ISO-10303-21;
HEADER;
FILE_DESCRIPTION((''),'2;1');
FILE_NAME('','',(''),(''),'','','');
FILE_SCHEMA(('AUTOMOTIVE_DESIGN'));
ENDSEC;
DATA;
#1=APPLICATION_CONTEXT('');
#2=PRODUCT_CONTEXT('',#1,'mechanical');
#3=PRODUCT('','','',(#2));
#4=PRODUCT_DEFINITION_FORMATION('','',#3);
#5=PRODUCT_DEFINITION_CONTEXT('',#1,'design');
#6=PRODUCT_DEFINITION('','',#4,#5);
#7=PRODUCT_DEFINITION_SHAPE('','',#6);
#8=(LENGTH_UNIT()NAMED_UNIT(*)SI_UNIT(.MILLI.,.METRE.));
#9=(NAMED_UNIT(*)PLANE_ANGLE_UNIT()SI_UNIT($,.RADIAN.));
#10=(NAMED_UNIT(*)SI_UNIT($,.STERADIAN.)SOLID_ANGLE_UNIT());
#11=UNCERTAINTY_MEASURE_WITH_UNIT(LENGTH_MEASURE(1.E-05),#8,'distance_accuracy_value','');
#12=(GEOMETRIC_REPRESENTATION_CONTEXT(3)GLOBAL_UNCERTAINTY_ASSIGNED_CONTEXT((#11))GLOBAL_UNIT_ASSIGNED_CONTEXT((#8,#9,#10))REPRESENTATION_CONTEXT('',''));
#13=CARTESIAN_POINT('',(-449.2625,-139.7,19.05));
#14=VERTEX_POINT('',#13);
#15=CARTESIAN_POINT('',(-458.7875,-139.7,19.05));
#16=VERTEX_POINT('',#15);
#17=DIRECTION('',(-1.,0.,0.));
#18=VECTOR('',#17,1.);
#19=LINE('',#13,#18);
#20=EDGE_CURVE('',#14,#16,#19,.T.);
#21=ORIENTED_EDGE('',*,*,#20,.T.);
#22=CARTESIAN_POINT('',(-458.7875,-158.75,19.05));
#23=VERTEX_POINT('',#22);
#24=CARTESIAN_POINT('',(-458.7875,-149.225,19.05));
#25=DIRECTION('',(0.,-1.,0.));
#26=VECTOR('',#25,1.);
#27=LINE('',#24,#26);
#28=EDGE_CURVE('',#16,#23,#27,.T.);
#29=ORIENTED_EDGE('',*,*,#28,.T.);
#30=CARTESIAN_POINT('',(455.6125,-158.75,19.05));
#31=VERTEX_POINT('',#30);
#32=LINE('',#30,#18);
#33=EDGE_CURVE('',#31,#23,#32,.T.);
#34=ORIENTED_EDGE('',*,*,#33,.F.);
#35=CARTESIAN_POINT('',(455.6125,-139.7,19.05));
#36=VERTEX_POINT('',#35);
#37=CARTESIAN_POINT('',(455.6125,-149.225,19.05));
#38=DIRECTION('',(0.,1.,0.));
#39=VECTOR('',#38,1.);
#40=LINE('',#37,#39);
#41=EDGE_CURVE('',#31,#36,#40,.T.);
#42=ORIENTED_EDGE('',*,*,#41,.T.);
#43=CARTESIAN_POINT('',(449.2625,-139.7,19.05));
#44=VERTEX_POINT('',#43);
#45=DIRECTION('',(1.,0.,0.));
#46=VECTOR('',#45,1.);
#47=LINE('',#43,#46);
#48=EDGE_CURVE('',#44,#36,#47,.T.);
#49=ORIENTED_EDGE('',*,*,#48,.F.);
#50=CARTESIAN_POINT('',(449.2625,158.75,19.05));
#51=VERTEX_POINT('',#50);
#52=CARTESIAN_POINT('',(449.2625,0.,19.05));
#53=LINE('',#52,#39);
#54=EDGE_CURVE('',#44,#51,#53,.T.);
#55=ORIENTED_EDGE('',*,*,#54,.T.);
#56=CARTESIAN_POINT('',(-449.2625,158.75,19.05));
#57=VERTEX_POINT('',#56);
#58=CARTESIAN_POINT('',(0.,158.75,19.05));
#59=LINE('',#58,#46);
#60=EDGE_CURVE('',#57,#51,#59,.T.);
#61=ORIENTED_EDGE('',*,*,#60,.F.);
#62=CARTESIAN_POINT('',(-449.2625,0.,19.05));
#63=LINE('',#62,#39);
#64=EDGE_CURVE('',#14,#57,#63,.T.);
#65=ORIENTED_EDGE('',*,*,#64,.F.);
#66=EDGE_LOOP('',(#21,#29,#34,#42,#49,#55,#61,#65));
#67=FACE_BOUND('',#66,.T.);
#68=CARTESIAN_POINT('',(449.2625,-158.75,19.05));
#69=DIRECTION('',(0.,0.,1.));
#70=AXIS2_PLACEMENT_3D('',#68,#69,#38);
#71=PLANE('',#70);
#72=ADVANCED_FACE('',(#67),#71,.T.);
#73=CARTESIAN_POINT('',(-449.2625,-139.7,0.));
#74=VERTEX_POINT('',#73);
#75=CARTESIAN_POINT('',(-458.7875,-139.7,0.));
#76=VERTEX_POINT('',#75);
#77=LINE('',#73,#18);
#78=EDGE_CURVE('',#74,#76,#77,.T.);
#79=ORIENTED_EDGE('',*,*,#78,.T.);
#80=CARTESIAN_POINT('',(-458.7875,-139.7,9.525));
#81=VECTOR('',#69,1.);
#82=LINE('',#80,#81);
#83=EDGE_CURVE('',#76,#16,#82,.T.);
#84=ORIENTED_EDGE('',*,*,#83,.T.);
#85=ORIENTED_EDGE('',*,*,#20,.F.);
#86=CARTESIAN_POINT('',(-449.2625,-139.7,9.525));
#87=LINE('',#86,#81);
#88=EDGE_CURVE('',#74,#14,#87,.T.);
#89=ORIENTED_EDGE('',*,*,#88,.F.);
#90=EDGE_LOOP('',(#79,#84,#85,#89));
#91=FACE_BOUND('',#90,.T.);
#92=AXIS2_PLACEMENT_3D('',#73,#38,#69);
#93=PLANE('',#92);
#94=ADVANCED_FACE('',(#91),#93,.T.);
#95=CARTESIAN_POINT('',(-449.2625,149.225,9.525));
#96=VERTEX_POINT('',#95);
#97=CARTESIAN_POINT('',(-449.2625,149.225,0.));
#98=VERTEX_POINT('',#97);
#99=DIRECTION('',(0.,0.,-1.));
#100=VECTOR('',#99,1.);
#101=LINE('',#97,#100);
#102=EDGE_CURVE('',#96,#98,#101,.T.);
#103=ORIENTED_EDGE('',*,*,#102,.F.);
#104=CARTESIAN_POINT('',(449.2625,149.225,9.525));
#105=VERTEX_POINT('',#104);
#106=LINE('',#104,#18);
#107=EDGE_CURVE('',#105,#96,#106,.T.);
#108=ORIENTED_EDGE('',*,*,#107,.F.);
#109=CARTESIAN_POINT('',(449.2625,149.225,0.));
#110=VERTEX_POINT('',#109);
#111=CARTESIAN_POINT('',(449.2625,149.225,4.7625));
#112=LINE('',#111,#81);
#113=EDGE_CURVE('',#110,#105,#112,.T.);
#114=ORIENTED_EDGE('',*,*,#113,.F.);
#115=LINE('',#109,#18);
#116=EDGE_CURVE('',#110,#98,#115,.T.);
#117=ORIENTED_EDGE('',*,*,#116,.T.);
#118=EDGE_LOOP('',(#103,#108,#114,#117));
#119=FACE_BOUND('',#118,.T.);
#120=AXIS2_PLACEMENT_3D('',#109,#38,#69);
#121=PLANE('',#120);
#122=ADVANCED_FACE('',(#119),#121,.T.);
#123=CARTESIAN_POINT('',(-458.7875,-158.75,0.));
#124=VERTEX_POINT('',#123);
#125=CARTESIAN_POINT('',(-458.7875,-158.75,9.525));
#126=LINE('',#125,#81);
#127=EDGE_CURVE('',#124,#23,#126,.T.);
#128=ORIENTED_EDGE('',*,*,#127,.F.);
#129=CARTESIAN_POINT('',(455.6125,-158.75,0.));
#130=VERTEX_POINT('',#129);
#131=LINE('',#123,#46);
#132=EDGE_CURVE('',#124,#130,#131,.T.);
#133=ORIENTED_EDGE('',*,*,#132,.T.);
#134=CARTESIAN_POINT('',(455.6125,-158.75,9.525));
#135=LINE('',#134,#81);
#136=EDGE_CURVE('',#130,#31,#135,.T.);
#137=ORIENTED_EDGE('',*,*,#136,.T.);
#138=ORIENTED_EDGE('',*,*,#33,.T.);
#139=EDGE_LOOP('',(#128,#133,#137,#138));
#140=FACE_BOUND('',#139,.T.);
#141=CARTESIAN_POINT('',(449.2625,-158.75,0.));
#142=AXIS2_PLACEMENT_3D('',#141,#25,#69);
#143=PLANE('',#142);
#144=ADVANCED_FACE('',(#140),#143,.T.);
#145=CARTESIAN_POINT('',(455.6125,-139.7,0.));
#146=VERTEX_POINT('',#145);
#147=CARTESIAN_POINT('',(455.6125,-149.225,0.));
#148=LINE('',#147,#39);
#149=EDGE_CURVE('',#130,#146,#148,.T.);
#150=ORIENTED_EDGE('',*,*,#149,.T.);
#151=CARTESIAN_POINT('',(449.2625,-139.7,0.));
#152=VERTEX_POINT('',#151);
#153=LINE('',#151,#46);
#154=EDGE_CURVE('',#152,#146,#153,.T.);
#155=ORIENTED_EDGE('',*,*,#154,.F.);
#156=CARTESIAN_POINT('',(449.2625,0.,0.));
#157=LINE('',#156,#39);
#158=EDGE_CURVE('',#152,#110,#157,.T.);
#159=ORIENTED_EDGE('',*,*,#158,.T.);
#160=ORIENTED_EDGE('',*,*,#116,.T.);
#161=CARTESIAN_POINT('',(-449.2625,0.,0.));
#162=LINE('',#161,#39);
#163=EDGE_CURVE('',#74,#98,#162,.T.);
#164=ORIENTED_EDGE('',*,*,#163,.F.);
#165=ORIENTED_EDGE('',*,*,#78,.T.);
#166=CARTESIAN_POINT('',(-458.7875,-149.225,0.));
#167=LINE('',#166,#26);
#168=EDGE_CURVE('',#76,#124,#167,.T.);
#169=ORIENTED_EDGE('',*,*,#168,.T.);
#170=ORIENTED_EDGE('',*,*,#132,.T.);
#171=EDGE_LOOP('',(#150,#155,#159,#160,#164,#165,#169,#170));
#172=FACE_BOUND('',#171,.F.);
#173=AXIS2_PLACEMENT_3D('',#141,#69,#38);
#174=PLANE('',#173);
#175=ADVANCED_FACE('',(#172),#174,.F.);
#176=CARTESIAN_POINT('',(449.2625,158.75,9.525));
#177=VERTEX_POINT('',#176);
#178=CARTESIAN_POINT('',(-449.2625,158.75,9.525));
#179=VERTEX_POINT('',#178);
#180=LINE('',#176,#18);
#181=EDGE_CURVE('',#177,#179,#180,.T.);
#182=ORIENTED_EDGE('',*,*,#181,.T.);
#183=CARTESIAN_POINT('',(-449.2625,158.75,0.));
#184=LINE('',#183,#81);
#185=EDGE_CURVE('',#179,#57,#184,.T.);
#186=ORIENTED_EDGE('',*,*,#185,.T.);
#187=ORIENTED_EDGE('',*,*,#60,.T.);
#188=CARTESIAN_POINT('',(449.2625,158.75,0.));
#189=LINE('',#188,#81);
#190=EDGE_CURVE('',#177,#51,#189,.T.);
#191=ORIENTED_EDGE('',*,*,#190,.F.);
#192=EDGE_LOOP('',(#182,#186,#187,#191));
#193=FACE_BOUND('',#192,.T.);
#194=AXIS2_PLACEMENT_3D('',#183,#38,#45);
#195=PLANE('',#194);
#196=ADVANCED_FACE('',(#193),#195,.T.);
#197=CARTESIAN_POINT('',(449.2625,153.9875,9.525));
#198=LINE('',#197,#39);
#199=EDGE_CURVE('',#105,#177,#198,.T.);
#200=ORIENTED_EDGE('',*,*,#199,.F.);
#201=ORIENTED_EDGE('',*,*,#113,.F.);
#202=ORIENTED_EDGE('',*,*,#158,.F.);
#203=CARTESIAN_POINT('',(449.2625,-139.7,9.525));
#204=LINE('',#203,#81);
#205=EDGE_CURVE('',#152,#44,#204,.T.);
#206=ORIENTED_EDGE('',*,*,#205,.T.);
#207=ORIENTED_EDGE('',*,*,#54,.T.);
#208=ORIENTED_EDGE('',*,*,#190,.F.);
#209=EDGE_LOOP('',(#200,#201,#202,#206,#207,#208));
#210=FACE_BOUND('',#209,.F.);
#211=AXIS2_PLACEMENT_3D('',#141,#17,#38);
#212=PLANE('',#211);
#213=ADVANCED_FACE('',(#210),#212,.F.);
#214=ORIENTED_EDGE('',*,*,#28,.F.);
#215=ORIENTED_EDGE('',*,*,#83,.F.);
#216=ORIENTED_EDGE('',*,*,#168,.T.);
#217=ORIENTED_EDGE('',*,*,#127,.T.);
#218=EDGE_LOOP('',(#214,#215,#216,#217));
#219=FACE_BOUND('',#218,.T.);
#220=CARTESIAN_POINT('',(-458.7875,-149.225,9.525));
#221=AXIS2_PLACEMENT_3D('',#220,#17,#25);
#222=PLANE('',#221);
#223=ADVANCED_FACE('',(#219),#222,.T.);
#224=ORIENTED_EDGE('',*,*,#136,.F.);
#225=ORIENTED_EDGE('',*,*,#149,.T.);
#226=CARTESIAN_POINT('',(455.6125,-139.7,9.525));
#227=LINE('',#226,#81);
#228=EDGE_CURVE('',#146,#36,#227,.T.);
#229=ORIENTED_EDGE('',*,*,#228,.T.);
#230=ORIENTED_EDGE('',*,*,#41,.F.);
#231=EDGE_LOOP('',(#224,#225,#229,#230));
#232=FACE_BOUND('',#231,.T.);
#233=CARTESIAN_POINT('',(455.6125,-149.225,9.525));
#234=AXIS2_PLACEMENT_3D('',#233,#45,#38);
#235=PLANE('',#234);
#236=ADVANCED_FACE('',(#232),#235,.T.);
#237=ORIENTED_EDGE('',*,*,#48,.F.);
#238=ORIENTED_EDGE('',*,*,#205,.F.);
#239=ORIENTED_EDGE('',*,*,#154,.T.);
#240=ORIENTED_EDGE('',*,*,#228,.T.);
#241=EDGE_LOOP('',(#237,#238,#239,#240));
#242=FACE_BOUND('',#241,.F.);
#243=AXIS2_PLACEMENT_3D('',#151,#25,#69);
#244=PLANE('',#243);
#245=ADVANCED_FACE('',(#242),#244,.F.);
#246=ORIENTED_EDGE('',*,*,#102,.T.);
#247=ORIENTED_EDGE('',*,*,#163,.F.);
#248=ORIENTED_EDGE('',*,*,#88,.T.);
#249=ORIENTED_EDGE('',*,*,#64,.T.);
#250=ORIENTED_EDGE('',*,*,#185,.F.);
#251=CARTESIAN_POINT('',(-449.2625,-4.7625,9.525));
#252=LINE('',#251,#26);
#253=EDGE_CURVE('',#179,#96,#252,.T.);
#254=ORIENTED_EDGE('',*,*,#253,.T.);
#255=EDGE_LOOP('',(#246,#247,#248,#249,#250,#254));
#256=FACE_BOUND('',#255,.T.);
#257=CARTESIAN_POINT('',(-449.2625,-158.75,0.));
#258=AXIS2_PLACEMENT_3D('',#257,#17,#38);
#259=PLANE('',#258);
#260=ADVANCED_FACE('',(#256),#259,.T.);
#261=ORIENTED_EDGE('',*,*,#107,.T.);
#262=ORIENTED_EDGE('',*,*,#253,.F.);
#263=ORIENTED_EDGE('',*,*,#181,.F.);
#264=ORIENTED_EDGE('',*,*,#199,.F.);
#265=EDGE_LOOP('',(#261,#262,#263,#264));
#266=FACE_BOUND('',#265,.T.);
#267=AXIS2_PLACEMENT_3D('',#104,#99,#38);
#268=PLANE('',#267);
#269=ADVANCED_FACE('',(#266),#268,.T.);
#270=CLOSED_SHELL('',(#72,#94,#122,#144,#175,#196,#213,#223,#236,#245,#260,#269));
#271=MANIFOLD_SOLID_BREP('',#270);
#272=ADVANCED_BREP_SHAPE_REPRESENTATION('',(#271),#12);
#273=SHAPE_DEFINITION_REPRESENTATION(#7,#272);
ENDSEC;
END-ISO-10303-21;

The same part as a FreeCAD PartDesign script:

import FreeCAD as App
import Part
import Sketcher
from FreeCAD import Vector
Q = App.Units.Quantity

doc = App.newDocument("Part")
body = doc.addObject("PartDesign::Body", "Body")

# Sketch on XY plane
sketch1 = body.newObject("Sketcher::SketchObject", "Sketch")
sketch1.AttachmentSupport = (doc.getObject("XY_Plane"), [""])
sketch1.MapMode = "FlatFace"
sketch1.addGeometry(Part.LineSegment(Vector(-449, 159, 0), Vector(-449, -159, 0)), False)
sketch1.addGeometry(Part.LineSegment(Vector(-449, -159, 0), Vector(449, -159, 0)), False)
sketch1.addGeometry(Part.LineSegment(Vector(449, -159, 0), Vector(449, 159, 0)), False)
sketch1.addGeometry(Part.LineSegment(Vector(449, 159, 0), Vector(-449, 159, 0)), False)
sketch1.addConstraint(Sketcher.Constraint("Coincident", 0, 2, 1, 1))
sketch1.addConstraint(Sketcher.Constraint("Coincident", 1, 2, 2, 1))
sketch1.addConstraint(Sketcher.Constraint("Coincident", 2, 2, 3, 1))
sketch1.addConstraint(Sketcher.Constraint("Coincident", 3, 2, 0, 1))
sketch1.addConstraint(Sketcher.Constraint("Vertical", 0))
sketch1.addConstraint(Sketcher.Constraint("Horizontal", 1))
sketch1.addConstraint(Sketcher.Constraint("Vertical", 2))
sketch1.addConstraint(Sketcher.Constraint("Horizontal", 3))
sketch1.addConstraint(Sketcher.Constraint("Symmetric", 0, 2, 2, 2, -1, 1))
sketch1.addConstraint(Sketcher.Constraint("DistanceY", 0, 2, 0, 1, Q("12.5 in")))
sketch1.addConstraint(Sketcher.Constraint("DistanceX", 1, 1, 1, 2, Q("35.375 in")))
pad1 = body.newObject("PartDesign::Pad", "Pad")
pad1.Profile = sketch1
pad1.Length = Q("0.75 in")

# Sketch on YZ plane
sketch2 = body.newObject("Sketcher::SketchObject", "Sketch001")
sketch2.AttachmentSupport = (doc.getObject("YZ_Plane"), [""])
sketch2.MapMode = "FlatFace"
sketch2.AttachmentOffset = App.Placement(Vector(0, 0, 17.6875 * 25.4), App.Rotation())
sketch2.addGeometry(Part.LineSegment(Vector(149, 10, 0), Vector(149, 0, 0)), False)
sketch2.addGeometry(Part.LineSegment(Vector(149, 0, 0), Vector(159, 0, 0)), False)
sketch2.addGeometry(Part.LineSegment(Vector(159, 0, 0), Vector(159, 10, 0)), False)
sketch2.addGeometry(Part.LineSegment(Vector(159, 10, 0), Vector(149, 10, 0)), False)
sketch2.addConstraint(Sketcher.Constraint("Coincident", 0, 2, 1, 1))
sketch2.addConstraint(Sketcher.Constraint("Coincident", 1, 2, 2, 1))
sketch2.addConstraint(Sketcher.Constraint("Coincident", 2, 2, 3, 1))
sketch2.addConstraint(Sketcher.Constraint("Coincident", 3, 2, 0, 1))
sketch2.addConstraint(Sketcher.Constraint("Vertical", 0))
sketch2.addConstraint(Sketcher.Constraint("Horizontal", 1))
sketch2.addConstraint(Sketcher.Constraint("Vertical", 2))
sketch2.addConstraint(Sketcher.Constraint("Horizontal", 3))
sketch2.addConstraint(Sketcher.Constraint("PointOnObject", 0, 2, -1))
sketch2.addConstraint(Sketcher.Constraint("Equal", 3, 0))
sketch2.addConstraint(Sketcher.Constraint("DistanceX", 1, 1, 1, 2, Q("0.375 in")))
sketch2.addConstraint(Sketcher.Constraint("DistanceX", -1, 1, 1, 2, Q("6.25 in")))
pocket1 = body.newObject("PartDesign::Pocket", "Pocket")
pocket1.Profile = sketch2
pocket1.Type = "ThroughAll"

# Sketch on YZ plane
sketch3 = body.newObject("Sketcher::SketchObject", "Sketch002")
sketch3.AttachmentSupport = (doc.getObject("YZ_Plane"), [""])
sketch3.MapMode = "FlatFace"
sketch3.AttachmentOffset = App.Placement(Vector(0, 0, -17.6875 * 25.4), App.Rotation())
sketch3.addGeometry(Part.LineSegment(Vector(-140, 19, 0), Vector(-140, 0, 0)), False)
sketch3.addGeometry(Part.LineSegment(Vector(-140, 0, 0), Vector(-159, 0, 0)), False)
sketch3.addGeometry(Part.LineSegment(Vector(-159, 0, 0), Vector(-159, 19, 0)), False)
sketch3.addGeometry(Part.LineSegment(Vector(-159, 19, 0), Vector(-140, 19, 0)), False)
sketch3.addConstraint(Sketcher.Constraint("Coincident", 0, 2, 1, 1))
sketch3.addConstraint(Sketcher.Constraint("Coincident", 1, 2, 2, 1))
sketch3.addConstraint(Sketcher.Constraint("Coincident", 2, 2, 3, 1))
sketch3.addConstraint(Sketcher.Constraint("Coincident", 3, 2, 0, 1))
sketch3.addConstraint(Sketcher.Constraint("Vertical", 0))
sketch3.addConstraint(Sketcher.Constraint("Horizontal", 1))
sketch3.addConstraint(Sketcher.Constraint("Vertical", 2))
sketch3.addConstraint(Sketcher.Constraint("Horizontal", 3))
sketch3.addConstraint(Sketcher.Constraint("PointOnObject", 0, 2, -1))
sketch3.addConstraint(Sketcher.Constraint("Equal", 3, 0))
sketch3.addConstraint(Sketcher.Constraint("DistanceX", 1, 2, 1, 1, Q("0.75 in")))
sketch3.addConstraint(Sketcher.Constraint("DistanceX", 0, 2, -1, 1, Q("5.5 in")))
pad2 = body.newObject("PartDesign::Pad", "Pad001")
pad2.Profile = sketch3
pad2.Length = Q("0.375 in")
pad2.Reversed = True

# Sketch on YZ plane
sketch4 = body.newObject("Sketcher::SketchObject", "Sketch003")
sketch4.AttachmentSupport = (doc.getObject("YZ_Plane"), [""])
sketch4.MapMode = "FlatFace"
sketch4.AttachmentOffset = App.Placement(Vector(0, 0, 17.6875 * 25.4), App.Rotation())
sketch4.addGeometry(Part.LineSegment(Vector(-159, 19, 0), Vector(-159, 0, 0)), False)
sketch4.addGeometry(Part.LineSegment(Vector(-159, 0, 0), Vector(-140, 0, 0)), False)
sketch4.addGeometry(Part.LineSegment(Vector(-140, 0, 0), Vector(-140, 19, 0)), False)
sketch4.addGeometry(Part.LineSegment(Vector(-140, 19, 0), Vector(-159, 19, 0)), False)
sketch4.addConstraint(Sketcher.Constraint("Coincident", 0, 2, 1, 1))
sketch4.addConstraint(Sketcher.Constraint("Coincident", 1, 2, 2, 1))
sketch4.addConstraint(Sketcher.Constraint("Coincident", 2, 2, 3, 1))
sketch4.addConstraint(Sketcher.Constraint("Coincident", 3, 2, 0, 1))
sketch4.addConstraint(Sketcher.Constraint("Vertical", 0))
sketch4.addConstraint(Sketcher.Constraint("Horizontal", 1))
sketch4.addConstraint(Sketcher.Constraint("Vertical", 2))
sketch4.addConstraint(Sketcher.Constraint("Horizontal", 3))
sketch4.addConstraint(Sketcher.Constraint("PointOnObject", 0, 2, -1))
sketch4.addConstraint(Sketcher.Constraint("Equal", 3, 0))
sketch4.addConstraint(Sketcher.Constraint("DistanceX", 1, 1, 1, 2, Q("0.75 in")))
sketch4.addConstraint(Sketcher.Constraint("DistanceX", 1, 2, -1, 1, Q("5.5 in")))
pad3 = body.newObject("PartDesign::Pad", "Pad002")
pad3.Profile = sketch4
pad3.Length = Q("0.25 in")

doc.recompute()
